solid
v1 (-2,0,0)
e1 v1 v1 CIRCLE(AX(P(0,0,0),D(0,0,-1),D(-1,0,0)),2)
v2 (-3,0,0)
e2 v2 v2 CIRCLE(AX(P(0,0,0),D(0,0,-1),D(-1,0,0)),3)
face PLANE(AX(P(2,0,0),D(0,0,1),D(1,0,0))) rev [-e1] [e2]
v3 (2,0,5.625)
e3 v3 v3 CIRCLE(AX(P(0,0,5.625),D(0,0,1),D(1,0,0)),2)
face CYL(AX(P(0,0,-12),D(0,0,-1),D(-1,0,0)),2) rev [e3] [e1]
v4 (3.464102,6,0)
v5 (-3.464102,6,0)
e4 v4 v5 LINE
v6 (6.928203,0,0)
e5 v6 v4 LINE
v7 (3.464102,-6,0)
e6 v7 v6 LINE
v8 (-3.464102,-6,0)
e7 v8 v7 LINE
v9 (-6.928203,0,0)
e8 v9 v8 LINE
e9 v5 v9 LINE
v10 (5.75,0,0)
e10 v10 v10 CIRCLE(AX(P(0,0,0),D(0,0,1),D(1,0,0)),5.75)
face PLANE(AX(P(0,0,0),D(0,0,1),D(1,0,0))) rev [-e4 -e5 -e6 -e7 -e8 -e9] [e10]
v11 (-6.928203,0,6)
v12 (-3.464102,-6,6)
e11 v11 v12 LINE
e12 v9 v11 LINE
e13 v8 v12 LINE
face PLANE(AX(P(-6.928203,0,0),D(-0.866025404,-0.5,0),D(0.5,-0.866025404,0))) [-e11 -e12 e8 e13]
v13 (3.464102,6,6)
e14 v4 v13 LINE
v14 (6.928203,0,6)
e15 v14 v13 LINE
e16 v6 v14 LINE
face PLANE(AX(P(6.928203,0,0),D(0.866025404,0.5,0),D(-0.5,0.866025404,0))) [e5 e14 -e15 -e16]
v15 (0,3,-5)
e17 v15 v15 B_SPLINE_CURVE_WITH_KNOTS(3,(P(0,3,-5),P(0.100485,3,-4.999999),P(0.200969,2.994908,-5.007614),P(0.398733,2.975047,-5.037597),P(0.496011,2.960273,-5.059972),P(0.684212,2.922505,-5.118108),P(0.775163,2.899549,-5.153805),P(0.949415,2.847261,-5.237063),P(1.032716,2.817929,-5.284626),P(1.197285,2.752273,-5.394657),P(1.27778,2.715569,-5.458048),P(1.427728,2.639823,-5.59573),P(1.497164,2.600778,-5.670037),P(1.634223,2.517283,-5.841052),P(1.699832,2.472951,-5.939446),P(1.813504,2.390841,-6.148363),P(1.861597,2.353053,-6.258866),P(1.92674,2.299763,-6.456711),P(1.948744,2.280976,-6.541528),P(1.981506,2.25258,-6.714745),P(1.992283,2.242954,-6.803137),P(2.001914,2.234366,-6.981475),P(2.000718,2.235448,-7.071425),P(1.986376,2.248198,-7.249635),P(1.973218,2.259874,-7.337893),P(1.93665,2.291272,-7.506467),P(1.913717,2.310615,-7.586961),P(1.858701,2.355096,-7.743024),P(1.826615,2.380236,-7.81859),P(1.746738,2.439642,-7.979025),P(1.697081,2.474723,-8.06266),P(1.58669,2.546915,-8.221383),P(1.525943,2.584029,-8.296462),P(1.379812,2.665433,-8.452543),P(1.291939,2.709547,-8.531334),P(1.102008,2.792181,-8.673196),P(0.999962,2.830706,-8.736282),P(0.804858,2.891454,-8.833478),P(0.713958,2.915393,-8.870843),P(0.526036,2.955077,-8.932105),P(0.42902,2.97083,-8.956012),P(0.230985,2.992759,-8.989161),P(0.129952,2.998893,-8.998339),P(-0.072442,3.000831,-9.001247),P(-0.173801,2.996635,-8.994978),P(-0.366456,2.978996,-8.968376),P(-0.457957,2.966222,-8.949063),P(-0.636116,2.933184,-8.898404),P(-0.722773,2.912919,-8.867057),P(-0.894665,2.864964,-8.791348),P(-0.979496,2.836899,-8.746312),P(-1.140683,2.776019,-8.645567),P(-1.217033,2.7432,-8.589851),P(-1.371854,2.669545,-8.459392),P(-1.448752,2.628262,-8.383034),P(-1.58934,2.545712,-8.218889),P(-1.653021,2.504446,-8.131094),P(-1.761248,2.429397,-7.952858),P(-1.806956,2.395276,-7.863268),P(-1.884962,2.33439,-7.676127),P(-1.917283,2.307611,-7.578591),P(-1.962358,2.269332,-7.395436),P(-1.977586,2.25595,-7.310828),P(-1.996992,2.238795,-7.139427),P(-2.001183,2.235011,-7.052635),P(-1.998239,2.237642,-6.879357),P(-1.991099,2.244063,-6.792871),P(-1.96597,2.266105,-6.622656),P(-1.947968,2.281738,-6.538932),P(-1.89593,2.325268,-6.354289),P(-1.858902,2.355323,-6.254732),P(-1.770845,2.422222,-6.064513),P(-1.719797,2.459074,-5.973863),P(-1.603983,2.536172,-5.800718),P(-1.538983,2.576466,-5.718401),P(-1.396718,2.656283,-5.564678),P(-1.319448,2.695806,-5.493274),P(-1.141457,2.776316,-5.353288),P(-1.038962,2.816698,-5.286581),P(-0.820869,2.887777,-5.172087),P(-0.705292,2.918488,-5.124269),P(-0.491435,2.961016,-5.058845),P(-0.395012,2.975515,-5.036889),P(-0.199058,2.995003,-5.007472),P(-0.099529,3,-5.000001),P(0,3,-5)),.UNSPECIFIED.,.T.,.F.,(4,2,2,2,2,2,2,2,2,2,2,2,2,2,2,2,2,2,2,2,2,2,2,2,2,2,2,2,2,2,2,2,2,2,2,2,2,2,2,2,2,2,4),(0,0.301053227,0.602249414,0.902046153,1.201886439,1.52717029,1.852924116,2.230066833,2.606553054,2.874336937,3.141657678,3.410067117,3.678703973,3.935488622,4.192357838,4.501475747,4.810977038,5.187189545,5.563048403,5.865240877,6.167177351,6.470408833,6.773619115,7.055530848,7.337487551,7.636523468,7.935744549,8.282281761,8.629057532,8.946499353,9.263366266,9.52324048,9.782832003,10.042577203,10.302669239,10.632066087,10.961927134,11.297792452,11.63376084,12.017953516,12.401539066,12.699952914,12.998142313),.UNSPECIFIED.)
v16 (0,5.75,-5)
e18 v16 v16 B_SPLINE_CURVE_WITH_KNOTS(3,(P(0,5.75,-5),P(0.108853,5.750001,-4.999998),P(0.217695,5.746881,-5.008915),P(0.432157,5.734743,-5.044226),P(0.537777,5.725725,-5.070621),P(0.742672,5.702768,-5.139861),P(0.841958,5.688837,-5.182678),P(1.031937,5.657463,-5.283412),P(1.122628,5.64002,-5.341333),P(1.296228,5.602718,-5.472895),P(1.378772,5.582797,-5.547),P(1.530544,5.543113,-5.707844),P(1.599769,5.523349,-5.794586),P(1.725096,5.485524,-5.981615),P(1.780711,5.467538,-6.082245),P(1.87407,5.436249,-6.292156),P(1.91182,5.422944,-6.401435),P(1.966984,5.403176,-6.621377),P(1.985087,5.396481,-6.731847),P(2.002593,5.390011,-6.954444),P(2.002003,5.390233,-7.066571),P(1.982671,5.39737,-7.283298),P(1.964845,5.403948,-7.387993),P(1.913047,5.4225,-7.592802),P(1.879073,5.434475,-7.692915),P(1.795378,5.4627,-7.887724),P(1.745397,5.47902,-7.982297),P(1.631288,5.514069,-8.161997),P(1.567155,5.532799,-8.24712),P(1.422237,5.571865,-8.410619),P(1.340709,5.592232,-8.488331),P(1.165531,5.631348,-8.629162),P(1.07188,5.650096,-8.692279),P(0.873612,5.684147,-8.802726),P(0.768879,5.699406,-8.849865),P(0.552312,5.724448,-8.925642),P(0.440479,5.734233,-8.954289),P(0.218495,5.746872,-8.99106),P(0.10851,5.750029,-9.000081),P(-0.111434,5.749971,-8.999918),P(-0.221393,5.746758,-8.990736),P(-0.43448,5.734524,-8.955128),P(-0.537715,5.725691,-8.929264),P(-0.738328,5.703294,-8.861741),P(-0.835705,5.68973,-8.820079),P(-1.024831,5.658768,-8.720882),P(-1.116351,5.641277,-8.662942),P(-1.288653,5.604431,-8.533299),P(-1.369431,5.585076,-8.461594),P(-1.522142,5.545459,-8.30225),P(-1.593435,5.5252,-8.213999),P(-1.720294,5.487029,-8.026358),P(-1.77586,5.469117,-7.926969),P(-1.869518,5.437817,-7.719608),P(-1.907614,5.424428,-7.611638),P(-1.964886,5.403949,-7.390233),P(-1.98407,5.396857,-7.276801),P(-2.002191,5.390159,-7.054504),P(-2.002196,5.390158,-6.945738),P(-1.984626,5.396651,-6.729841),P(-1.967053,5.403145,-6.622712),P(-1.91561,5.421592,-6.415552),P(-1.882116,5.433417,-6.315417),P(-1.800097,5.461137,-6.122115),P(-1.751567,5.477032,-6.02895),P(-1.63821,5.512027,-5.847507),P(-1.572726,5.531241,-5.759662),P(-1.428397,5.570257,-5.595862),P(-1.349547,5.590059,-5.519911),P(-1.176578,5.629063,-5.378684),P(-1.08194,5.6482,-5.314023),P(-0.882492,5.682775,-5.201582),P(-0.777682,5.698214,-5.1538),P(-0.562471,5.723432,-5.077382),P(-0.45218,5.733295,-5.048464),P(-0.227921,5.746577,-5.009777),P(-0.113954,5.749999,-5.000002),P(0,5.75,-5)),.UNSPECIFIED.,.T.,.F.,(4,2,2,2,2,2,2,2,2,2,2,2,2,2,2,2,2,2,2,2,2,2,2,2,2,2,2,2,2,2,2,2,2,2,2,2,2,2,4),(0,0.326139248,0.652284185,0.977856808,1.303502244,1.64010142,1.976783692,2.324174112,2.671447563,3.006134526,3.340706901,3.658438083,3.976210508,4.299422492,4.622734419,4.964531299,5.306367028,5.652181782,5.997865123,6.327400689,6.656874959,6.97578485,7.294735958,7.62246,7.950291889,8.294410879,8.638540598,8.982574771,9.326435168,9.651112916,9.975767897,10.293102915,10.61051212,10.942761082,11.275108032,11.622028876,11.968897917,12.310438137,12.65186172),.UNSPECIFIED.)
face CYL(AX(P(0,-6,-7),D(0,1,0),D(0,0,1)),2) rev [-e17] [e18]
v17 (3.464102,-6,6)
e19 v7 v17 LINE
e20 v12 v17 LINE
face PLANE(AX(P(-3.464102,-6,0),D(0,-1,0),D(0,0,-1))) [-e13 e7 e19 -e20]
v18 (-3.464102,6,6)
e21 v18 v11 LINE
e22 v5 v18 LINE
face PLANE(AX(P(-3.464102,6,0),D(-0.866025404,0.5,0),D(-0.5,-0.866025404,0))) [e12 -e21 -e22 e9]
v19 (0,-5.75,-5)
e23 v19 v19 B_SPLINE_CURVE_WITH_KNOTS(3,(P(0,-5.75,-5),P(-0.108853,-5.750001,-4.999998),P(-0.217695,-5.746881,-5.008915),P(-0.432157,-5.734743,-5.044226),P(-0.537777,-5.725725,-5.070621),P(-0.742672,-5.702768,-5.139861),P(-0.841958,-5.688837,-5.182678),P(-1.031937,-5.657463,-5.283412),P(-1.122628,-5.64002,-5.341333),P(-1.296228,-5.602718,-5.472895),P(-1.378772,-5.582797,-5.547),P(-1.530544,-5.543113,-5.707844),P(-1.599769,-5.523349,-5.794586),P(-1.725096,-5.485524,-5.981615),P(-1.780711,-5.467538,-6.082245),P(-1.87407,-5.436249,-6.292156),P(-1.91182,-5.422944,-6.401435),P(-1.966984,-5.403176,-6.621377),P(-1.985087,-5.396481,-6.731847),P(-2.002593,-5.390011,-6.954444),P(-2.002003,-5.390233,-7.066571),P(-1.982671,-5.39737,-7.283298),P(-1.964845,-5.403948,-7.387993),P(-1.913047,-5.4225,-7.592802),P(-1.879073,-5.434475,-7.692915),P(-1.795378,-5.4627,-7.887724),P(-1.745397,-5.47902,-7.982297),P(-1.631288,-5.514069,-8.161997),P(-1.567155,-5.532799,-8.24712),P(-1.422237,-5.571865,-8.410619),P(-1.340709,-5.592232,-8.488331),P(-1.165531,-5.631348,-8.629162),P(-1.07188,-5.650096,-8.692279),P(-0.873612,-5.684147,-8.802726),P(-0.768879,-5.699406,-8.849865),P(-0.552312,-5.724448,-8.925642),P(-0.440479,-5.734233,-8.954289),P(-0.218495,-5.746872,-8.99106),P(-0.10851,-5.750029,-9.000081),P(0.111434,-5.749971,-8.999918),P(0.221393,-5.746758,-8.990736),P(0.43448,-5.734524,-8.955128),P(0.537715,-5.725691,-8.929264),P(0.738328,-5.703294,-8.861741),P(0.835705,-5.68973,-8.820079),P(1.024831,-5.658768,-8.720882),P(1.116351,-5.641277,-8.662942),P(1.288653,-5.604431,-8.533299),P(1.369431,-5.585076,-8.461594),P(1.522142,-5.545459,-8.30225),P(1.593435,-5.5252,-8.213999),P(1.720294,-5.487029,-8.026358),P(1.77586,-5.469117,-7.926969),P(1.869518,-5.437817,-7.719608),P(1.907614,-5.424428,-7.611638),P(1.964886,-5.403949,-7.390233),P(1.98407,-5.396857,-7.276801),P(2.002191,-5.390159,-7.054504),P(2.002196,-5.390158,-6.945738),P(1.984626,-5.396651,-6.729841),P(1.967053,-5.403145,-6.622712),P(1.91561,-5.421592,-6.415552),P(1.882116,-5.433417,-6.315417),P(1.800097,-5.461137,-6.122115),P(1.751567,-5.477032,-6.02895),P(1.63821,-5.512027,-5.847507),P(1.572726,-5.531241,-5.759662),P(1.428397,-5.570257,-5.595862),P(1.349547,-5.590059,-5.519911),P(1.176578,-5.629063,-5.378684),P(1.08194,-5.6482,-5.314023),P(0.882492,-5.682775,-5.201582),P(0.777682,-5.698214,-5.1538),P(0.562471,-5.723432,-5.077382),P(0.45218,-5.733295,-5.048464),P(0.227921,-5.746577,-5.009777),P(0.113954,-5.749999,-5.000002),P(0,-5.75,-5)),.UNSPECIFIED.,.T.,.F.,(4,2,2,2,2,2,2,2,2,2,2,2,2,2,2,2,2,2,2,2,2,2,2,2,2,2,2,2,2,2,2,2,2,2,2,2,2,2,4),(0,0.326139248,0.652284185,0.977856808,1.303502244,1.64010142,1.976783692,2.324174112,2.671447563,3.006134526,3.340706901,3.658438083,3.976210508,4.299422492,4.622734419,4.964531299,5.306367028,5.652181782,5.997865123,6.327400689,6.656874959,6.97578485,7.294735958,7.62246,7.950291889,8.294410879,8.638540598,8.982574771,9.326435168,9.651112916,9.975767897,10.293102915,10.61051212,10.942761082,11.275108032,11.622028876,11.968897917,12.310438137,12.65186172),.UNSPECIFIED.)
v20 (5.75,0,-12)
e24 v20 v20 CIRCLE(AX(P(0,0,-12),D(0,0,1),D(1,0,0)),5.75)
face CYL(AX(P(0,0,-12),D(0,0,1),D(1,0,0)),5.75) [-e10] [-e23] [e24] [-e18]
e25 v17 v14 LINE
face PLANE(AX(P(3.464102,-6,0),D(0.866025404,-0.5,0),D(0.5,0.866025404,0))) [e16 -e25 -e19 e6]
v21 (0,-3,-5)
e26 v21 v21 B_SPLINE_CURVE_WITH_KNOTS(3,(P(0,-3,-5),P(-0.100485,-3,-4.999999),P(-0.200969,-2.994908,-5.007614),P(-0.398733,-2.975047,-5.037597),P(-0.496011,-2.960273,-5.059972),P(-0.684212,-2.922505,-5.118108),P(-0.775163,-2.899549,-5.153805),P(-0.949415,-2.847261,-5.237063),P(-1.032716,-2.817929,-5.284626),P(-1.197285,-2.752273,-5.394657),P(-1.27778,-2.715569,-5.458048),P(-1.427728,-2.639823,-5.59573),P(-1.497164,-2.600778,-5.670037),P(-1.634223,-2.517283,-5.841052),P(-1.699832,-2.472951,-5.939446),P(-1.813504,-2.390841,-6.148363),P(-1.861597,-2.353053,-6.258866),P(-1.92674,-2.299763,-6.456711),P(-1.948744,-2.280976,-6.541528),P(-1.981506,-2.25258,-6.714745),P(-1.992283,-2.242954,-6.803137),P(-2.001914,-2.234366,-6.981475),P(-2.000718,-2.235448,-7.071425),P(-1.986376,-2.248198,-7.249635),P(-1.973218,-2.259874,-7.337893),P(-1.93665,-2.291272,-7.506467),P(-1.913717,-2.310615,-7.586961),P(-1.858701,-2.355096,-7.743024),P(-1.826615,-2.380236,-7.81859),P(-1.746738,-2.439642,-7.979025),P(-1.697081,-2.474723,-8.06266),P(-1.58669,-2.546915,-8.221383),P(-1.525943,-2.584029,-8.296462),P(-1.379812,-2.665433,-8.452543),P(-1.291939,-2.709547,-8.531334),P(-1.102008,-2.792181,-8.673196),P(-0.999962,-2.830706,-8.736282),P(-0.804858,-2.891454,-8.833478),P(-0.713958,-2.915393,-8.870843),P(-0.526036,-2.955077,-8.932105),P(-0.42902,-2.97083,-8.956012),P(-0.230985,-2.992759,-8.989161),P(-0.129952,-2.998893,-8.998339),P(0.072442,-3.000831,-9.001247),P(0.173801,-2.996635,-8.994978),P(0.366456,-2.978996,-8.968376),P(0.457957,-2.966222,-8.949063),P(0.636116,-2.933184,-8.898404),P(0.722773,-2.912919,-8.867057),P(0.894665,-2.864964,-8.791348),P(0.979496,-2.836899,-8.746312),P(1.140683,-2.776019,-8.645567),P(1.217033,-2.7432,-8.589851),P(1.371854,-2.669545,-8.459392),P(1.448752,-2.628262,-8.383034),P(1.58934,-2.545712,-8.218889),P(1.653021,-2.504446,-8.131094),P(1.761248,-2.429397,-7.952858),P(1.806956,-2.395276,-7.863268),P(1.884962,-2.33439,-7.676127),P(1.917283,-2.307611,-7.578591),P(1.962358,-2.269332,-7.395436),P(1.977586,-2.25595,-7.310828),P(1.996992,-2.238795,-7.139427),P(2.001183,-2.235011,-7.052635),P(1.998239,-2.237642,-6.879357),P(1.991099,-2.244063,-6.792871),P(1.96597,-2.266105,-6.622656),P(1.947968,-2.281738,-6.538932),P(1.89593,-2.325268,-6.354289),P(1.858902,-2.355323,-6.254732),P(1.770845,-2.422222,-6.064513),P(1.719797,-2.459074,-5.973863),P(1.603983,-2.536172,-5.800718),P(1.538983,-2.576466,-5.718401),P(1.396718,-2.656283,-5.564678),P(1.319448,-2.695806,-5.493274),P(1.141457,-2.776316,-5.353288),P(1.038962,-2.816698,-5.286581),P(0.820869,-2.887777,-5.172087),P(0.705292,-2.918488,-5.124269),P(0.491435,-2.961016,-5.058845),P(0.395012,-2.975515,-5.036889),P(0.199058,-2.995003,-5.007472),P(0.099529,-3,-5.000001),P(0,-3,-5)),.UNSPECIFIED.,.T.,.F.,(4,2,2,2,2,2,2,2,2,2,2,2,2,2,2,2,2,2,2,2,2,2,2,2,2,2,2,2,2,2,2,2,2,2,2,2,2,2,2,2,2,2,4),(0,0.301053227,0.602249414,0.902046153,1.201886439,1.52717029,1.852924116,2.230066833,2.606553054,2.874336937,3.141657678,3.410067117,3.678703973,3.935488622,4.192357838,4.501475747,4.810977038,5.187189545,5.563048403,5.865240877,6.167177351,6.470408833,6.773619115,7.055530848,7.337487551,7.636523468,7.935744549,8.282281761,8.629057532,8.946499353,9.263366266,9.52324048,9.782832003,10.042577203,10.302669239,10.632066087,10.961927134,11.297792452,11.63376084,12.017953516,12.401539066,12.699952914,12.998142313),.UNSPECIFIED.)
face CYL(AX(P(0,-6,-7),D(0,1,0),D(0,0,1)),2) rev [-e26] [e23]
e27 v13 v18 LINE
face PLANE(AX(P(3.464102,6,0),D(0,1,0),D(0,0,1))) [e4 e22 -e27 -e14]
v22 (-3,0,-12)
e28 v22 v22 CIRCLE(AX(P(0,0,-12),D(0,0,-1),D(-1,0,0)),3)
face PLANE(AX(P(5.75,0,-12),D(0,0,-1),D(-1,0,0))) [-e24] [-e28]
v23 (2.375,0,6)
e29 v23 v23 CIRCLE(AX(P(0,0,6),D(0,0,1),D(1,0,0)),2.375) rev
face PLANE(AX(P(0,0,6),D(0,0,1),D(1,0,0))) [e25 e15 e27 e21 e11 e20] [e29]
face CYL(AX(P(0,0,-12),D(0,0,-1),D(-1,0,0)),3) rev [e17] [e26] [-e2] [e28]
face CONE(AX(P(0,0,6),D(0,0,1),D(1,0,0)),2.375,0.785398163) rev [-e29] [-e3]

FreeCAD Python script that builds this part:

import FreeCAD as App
import Part
import Sketcher
from FreeCAD import Vector
Q = App.Units.Quantity


def edges_at(feature, points):
    """Names of the edges that pass closest to the given points."""
    edges = feature.Shape.Edges
    near = lambda p: min(range(len(edges)), key=lambda i: edges[i].distToShape(Part.Vertex(*p))[0])
    return sorted({f"Edge{near(p) + 1}" for p in points})


def add_polygon(sketch, points):
    """Adds a closed chain of lines whose ends are joined by coincident constraints."""
    first, n = sketch.GeometryCount, len(points)
    for a, b in zip(points, points[1:] + points[:1]):
        sketch.addGeometry(Part.LineSegment(App.Vector(*a, 0), App.Vector(*b, 0)), False)
    for i in range(n):
        sketch.addConstraint(Sketcher.Constraint("Coincident", first + i, 2, first + (i + 1) % n, 1))

doc = App.newDocument("Part")
body = doc.addObject("PartDesign::Body", "Body")

# Sketch on XY plane
sketch1 = body.newObject("Sketcher::SketchObject", "Sketch")
sketch1.AttachmentSupport = (doc.getObject("XY_Plane"), [""])
sketch1.MapMode = "FlatFace"
sketch1.AttachmentOffset = App.Placement(Vector(0, 0, 6), App.Rotation())
add_polygon(sketch1, [(-3, -6), (3, -6), (7, 0), (3, 6), (-3, 6), (-7, 0)])  # lines 0-5
sketch1.addConstraint(Sketcher.Constraint("Horizontal", 0))
sketch1.addConstraint(Sketcher.Constraint("Horizontal", 3))
sketch1.addConstraint(Sketcher.Constraint("Symmetric", 0, 2, 3, 2, -1, 1))
sketch1.addConstraint(Sketcher.Constraint("Symmetric", 1, 2, 4, 2, -1, 1))
sketch1.addConstraint(Sketcher.Constraint("PointOnObject", 1, 2, -1))
sketch1.addConstraint(Sketcher.Constraint("Parallel", 2, 5))
sketch1.addConstraint(Sketcher.Constraint("Vertical", 0, 2, 2, 2))
sketch1.addConstraint(Sketcher.Constraint("Angle", 1, Q("60 deg")))
sketch1.addConstraint(Sketcher.Constraint("DistanceY", 0, 2, -1, 1, Q("6 mm")))
sketch1.addConstraint(Sketcher.Constraint("DistanceX", -1, 1, 0, 2, Q("3.464102 mm")))
pad1 = body.newObject("PartDesign::Pad", "Pad")
pad1.Profile = sketch1
pad1.Length = 6
pad1.Reversed = True

# Sketch on XZ plane
sketch2 = body.newObject("Sketcher::SketchObject", "Sketch001")
sketch2.AttachmentSupport = (doc.getObject("XZ_Plane"), [""])
sketch2.MapMode = "FlatFace"
add_polygon(sketch2, [(0, -12), (0, 0), (6, 0), (6, -12)])  # lines 0-3
sketch2.addConstraint(Sketcher.Constraint("Vertical", 0))
sketch2.addConstraint(Sketcher.Constraint("Horizontal", 1))
sketch2.addConstraint(Sketcher.Constraint("Vertical", 2))
sketch2.addConstraint(Sketcher.Constraint("Horizontal", 3))
sketch2.addConstraint(Sketcher.Constraint("Coincident", 0, 2, -1, 1))
sketch2.addConstraint(Sketcher.Constraint("DistanceY", 0, 1, 0, 2, Q("12 mm")))
sketch2.addConstraint(Sketcher.Constraint("DistanceX", 1, 1, 1, 2, Q("5.75 mm")))
revolution = body.newObject("PartDesign::Revolution", "Revolution")
revolution.Profile = sketch2
revolution.ReferenceAxis = (sketch2, ["V_Axis"])
revolution.Angle = 360

# Sketch on XY plane
sketch3 = body.newObject("Sketcher::SketchObject", "Sketch002")
sketch3.AttachmentSupport = (doc.getObject("XY_Plane"), [""])
sketch3.MapMode = "FlatFace"
sketch3.AttachmentOffset = App.Placement(Vector(0, 0, -12), App.Rotation())
sketch3.addGeometry(Part.Circle(Vector(0, 0, 0), Vector(0, 0, 1), 2), False)
sketch3.addConstraint(Sketcher.Constraint("Coincident", 0, 3, -1, 1))
sketch3.addConstraint(Sketcher.Constraint("Diameter", 0, Q("4 mm")))
doc.recompute()
hole = body.newObject("PartDesign::Hole", "Hole")
hole.Profile = sketch3
hole.ThreadType = "None"
hole.Diameter = 4
hole.DepthType = "ThroughAll"
hole.HoleCutType = "Counterbore"
hole.HoleCutDiameter = 6
hole.HoleCutDepth = 12
hole.Reversed = True

# Sketch on XZ plane
sketch4 = body.newObject("Sketcher::SketchObject", "Sketch003")
sketch4.AttachmentSupport = (doc.getObject("XZ_Plane"), [""])
sketch4.MapMode = "FlatFace"
sketch4.AttachmentOffset = App.Placement(Vector(0, 0, -5.75), App.Rotation())
sketch4.addGeometry(Part.Circle(Vector(0, -7, 0), Vector(0, 0, 1), 2), False)
sketch4.addConstraint(Sketcher.Constraint("PointOnObject", 0, 3, -2))
sketch4.addConstraint(Sketcher.Constraint("Diameter", 0, Q("4 mm")))
sketch4.addConstraint(Sketcher.Constraint("DistanceY", 0, 3, -1, 1, Q("7 mm")))
pocket1 = body.newObject("PartDesign::Pocket", "Pocket")
pocket1.Profile = sketch4
pocket1.Type = "ThroughAll"
pocket1.Reversed = True
doc.recompute()

chamfer = body.newObject("PartDesign::Chamfer", "Chamfer")
chamfer.Base = (pocket1, edges_at(pocket1, [(-2, 0, 6)]))
chamfer.Size = 0.375

doc.recompute()
